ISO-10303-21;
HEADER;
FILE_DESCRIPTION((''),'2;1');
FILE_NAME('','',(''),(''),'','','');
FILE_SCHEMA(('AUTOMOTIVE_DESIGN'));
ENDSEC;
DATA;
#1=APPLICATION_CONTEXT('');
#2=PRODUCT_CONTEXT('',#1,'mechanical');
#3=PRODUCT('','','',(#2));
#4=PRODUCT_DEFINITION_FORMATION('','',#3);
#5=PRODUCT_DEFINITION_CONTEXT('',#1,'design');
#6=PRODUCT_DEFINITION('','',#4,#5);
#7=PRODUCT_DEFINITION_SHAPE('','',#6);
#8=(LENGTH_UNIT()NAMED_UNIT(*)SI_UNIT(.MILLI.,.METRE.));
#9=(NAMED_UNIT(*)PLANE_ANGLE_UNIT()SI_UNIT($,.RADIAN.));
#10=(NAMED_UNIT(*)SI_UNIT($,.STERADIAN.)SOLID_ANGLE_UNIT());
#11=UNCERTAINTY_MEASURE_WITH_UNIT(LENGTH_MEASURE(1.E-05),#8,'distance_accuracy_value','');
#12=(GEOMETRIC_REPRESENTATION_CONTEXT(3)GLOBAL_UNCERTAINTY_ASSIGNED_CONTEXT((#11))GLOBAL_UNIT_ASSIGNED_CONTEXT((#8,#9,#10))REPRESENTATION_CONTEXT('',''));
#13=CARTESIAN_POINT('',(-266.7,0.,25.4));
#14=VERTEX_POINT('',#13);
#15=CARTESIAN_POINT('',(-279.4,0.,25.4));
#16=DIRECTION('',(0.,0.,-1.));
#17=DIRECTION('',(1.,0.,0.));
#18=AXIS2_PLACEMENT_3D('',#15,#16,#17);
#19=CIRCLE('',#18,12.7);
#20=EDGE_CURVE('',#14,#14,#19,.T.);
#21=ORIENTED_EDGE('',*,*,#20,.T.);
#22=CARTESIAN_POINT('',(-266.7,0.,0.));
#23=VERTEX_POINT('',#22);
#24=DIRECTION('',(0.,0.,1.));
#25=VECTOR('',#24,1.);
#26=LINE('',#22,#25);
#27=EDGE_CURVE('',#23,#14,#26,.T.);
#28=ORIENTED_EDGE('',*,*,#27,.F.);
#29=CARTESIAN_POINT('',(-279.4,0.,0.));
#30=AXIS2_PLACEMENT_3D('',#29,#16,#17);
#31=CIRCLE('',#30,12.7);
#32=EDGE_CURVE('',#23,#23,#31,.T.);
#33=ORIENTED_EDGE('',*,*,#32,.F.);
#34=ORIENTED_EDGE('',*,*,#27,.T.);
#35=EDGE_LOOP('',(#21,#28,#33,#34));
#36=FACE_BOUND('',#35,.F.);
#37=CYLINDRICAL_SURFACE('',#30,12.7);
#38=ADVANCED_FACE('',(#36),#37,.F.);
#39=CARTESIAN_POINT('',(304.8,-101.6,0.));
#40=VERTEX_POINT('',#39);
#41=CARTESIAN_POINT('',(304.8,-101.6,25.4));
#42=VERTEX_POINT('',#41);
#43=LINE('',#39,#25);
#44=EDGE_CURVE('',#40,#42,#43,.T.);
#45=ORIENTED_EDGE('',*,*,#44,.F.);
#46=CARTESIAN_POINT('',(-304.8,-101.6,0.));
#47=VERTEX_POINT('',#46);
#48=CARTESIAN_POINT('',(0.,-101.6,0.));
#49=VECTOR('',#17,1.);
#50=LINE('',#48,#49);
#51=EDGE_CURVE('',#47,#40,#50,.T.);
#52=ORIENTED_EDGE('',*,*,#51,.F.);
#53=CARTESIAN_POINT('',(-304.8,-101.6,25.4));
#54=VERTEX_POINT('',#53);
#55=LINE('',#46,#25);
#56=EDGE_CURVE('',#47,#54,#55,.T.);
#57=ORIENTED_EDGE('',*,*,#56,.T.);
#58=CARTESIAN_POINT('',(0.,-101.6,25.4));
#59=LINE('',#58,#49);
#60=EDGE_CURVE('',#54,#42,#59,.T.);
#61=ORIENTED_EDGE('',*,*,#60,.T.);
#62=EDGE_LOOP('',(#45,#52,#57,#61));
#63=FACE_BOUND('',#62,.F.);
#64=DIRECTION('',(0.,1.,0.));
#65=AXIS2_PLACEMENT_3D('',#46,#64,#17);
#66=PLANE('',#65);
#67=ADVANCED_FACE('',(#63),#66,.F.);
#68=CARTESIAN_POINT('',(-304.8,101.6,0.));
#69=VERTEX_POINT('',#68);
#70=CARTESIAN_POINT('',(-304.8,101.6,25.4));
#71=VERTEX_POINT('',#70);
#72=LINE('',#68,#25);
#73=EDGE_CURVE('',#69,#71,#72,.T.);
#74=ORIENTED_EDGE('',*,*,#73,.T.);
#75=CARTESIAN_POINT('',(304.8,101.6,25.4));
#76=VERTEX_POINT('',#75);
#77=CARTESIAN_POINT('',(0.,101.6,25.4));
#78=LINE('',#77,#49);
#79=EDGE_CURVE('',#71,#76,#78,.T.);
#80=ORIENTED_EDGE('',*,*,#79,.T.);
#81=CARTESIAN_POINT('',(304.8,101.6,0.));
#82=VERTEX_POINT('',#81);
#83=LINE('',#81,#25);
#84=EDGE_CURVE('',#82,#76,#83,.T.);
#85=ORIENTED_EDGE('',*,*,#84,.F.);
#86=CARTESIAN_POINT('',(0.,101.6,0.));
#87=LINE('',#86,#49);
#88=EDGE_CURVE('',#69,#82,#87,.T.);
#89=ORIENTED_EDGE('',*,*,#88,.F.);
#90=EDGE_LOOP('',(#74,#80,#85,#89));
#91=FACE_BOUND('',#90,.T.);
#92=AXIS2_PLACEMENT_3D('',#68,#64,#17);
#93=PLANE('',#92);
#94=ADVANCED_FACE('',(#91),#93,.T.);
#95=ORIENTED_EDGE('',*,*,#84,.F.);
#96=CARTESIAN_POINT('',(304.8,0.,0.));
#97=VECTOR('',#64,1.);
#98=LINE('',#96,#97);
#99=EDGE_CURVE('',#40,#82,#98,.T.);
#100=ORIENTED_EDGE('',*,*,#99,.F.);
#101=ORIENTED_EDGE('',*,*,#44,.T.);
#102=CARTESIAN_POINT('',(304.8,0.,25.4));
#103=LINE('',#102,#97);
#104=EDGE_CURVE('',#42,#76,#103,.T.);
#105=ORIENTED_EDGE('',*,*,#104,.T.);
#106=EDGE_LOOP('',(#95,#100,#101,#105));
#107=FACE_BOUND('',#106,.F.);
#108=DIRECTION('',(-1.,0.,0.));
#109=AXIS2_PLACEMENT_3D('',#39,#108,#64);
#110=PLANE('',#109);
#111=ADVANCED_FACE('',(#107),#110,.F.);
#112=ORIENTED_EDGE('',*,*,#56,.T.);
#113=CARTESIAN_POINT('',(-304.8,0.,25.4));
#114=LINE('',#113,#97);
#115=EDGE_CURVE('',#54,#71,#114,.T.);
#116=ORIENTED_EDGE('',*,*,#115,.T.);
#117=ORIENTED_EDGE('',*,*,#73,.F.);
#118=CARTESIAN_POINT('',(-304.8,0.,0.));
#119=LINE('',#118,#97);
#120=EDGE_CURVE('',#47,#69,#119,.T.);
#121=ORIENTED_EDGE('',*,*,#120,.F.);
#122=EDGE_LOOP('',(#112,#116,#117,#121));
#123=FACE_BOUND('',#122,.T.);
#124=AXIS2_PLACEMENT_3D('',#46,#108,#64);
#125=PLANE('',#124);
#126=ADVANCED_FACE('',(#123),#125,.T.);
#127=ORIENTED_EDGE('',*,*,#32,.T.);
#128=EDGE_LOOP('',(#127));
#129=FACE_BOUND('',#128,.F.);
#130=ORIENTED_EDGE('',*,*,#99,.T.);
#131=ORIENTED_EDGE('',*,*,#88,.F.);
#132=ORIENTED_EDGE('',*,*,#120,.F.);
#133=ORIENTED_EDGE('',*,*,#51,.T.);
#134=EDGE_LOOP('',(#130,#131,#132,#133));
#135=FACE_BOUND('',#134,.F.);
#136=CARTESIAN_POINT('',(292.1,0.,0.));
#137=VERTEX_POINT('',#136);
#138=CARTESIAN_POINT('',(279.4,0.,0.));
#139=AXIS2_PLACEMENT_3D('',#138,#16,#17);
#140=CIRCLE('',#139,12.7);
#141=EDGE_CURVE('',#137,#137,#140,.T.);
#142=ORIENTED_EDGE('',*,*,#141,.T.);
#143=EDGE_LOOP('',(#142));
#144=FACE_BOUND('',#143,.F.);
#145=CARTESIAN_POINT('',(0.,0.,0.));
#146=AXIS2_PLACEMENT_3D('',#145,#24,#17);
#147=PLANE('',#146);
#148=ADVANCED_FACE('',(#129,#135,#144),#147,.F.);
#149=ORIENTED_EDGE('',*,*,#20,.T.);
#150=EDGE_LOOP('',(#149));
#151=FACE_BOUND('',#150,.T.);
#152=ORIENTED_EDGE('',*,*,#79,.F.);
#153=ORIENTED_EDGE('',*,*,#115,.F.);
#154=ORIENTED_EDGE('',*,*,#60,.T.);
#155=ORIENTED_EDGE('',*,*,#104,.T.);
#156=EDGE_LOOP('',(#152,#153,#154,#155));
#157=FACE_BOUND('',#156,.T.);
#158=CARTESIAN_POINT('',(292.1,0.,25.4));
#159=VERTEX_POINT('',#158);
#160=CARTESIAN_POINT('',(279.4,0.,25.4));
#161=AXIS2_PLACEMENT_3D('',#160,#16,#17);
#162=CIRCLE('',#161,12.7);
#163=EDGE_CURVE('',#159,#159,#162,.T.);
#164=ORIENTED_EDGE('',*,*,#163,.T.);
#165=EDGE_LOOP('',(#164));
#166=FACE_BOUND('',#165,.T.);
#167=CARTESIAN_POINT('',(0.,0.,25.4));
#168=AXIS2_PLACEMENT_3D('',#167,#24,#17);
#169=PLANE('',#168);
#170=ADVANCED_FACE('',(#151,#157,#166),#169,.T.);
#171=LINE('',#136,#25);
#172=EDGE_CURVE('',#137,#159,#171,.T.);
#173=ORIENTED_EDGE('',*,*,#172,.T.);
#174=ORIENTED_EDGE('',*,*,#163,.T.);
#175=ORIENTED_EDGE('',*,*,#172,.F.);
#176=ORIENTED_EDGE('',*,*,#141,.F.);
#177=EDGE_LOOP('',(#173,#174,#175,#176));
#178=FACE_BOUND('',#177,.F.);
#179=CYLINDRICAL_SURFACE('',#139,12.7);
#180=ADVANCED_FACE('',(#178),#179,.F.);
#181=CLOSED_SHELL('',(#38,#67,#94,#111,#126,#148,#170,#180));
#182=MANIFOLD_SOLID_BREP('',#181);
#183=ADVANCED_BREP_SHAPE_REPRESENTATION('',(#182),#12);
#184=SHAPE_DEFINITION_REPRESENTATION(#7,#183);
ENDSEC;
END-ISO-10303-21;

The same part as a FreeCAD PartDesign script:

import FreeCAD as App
import Part
import Sketcher
Q = App.Units.Quantity

doc = App.newDocument("Part")
body = doc.addObject("PartDesign::Body", "Body")

# Sketch on XY plane
sketch1 = doc.addObject("Sketcher::SketchObject", "Sketch")
body.addObject(sketch1)
sketch1.AttachmentSupport = (doc.XY_Plane, [""])
sketch1.MapMode = "FlatFace"
sketch1.addGeometry([
    Part.LineSegment(App.Vector(-305, 102, 0), App.Vector(-305, -102, 0)),
    Part.LineSegment(App.Vector(-305, -102, 0), App.Vector(305, -102, 0)),
    Part.LineSegment(App.Vector(305, -102, 0), App.Vector(305, 102, 0)),
    Part.LineSegment(App.Vector(305, 102, 0), App.Vector(-305, 102, 0)),
], False)
sketch1.addConstraint([
    Sketcher.Constraint("Coincident", 0, 2, 1, 1),
    Sketcher.Constraint("Coincident", 1, 2, 2, 1),
    Sketcher.Constraint("Coincident", 2, 2, 3, 1),
    Sketcher.Constraint("Coincident", 3, 2, 0, 1),
    Sketcher.Constraint("Vertical", 0),
    Sketcher.Constraint("Horizontal", 1),
    Sketcher.Constraint("Vertical", 2),
    Sketcher.Constraint("Horizontal", 3),
    Sketcher.Constraint("Symmetric", 0, 2, 2, 2, -1, 1),
    Sketcher.Constraint("DistanceX", 1, 1, 1, 2, Q("24 in")),
    Sketcher.Constraint("DistanceY", 0, 2, 0, 1, Q("8 in")),
])
pad1 = doc.addObject("PartDesign::Pad", "Pad")
body.addObject(pad1)
pad1.Profile = sketch1
pad1.Length = Q("1 in")

# Sketch on XY plane
sketch2 = doc.addObject("Sketcher::SketchObject", "Sketch001")
body.addObject(sketch2)
sketch2.AttachmentSupport = (doc.XY_Plane, [""])
sketch2.MapMode = "FlatFace"
sketch2.addGeometry([
    Part.Circle(App.Vector(-279, 0, 0), App.Vector(0, 0, 1), 13),
    Part.Circle(App.Vector(279, 0, 0), App.Vector(0, 0, 1), 13),
], False)
sketch2.addConstraint([
    Sketcher.Constraint("Equal", 0, 1),
    Sketcher.Constraint("Symmetric", 0, 3, 1, 3, -1, 1),
    Sketcher.Constraint("PointOnObject", 0, 3, -1),
    Sketcher.Constraint("Diameter", 0, Q("1 in")),
    Sketcher.Constraint("DistanceX", 0, 3, -1, 1, Q("11 in")),
])
pocket1 = doc.addObject("PartDesign::Pocket", "Pocket")
body.addObject(pocket1)
pocket1.Profile = sketch2
pocket1.Type = "ThroughAll"
pocket1.Reversed = True

doc.recompute()
